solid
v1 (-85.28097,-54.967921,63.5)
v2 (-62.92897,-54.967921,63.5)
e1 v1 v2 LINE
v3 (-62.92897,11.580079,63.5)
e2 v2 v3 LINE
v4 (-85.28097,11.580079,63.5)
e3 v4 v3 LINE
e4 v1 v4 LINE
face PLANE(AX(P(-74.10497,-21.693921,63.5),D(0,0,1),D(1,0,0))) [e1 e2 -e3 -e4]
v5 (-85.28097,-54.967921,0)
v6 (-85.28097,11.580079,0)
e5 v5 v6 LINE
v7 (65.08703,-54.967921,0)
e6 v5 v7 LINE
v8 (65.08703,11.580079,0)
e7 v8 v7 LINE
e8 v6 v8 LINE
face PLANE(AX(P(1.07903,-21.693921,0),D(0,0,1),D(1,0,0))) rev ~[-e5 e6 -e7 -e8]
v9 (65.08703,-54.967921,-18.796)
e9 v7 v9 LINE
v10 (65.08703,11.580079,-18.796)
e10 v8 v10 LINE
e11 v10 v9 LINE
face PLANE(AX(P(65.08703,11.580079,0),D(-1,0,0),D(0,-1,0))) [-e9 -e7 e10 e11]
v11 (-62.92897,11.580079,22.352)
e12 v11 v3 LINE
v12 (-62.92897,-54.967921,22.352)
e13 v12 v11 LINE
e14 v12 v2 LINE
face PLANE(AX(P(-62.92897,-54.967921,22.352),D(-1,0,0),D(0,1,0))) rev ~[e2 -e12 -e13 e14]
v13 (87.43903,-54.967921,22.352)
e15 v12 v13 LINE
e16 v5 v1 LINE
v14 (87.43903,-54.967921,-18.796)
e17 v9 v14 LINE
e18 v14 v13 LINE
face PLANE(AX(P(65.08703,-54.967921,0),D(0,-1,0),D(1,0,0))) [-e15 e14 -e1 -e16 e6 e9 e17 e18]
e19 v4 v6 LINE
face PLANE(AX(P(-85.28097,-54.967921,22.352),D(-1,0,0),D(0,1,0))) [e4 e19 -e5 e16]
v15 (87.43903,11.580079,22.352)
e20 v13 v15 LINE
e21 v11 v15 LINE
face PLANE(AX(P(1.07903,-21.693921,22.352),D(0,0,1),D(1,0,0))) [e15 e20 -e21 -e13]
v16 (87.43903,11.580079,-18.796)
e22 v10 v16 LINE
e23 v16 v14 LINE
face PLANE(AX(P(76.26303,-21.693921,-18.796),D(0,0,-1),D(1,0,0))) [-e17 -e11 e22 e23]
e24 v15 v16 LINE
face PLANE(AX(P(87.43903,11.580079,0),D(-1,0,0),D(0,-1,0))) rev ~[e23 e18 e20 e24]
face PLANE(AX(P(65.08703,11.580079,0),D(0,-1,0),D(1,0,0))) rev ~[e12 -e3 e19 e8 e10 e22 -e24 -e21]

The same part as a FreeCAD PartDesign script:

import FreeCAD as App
import Part
import Sketcher

V = App.Vector
Q = App.Units.Quantity


def add_polygon(sketch, points):
    """Adds a closed chain of lines whose ends are joined by coincident constraints."""
    first, n = sketch.GeometryCount, len(points)
    for a, b in zip(points, points[1:] + points[:1]):
        sketch.addGeometry(Part.LineSegment(App.Vector(*a, 0), App.Vector(*b, 0)), False)
    for i in range(n):
        sketch.addConstraint(Sketcher.Constraint("Coincident", first + i, 2, first + (i + 1) % n, 1))

doc = App.newDocument("Part")
params = doc.addObject("Spreadsheet::Sheet", "Params")
for row, (alias, value) in enumerate([
    ("sketch1_width", "6.8 in"),
    ("sketch1_height", "2.62 in"),
    ("pad1_length", "0.88 in"),
    ("sketch2_width", "0.88 in"),
    ("sketch2_height", "2.62 in"),
    ("pad2_length", "1.62 in"),
    ("sketch3_width", "0.88 in"),
    ("sketch3_height", "2.62 in"),
    ("pad3_length", "0.74 in"),
], start=1):
    params.set(f"A{row}", alias)
    params.set(f"B{row}", "=" + value)
    params.setAlias(f"B{row}", alias)

body = doc.addObject("PartDesign::Body", "Body")

sketch1 = body.newObject("Sketcher::SketchObject", "Sketch")
sketch1.AttachmentSupport = (doc.getObject("XY_Plane"), [""])
sketch1.MapMode = "FlatFace"
add_polygon(sketch1, [(-85, 12), (-85, -55), (87, -55), (87, 12)])
sketch1.addConstraint([
    Sketcher.Constraint("Vertical", 0),
    Sketcher.Constraint("Horizontal", 1),
    Sketcher.Constraint("Vertical", 2),
    Sketcher.Constraint("Horizontal", 3),
    Sketcher.Constraint("DistanceX", 1, 1, 1, 2, Q("6.8 in")),
    Sketcher.Constraint("DistanceY", 0, 2, 0, 1, Q("2.62 in")),
    Sketcher.Constraint("DistanceX", 0, 2, -1, 1, 85.28097),
    Sketcher.Constraint("DistanceY", 0, 2, -1, 1, 54.967921),
])
sketch1.setExpression("Constraints[8]", "Params.sketch1_width")
sketch1.setExpression("Constraints[9]", "Params.sketch1_height")
pad1 = body.newObject("PartDesign::Pad", "Pad")
pad1.Profile = sketch1
pad1.setExpression("Length", "Params.pad1_length")

sketch2 = body.newObject("Sketcher::SketchObject", "Sketch001")
sketch2.AttachmentSupport = (doc.getObject("XY_Plane"), [""])
sketch2.MapMode = "FlatFace"
sketch2.AttachmentOffset = App.Placement(V(0, 0, 0.88 * 25.4), App.Rotation())
add_polygon(sketch2, [(-85, 12), (-85, -55), (-63, -55), (-63, 12)])
sketch2.addConstraint([
    Sketcher.Constraint("Vertical", 0),
    Sketcher.Constraint("Horizontal", 1),
    Sketcher.Constraint("Vertical", 2),
    Sketcher.Constraint("Horizontal", 3),
    Sketcher.Constraint("DistanceX", 1, 1, 1, 2, Q("0.88 in")),
    Sketcher.Constraint("DistanceY", 0, 2, 0, 1, Q("2.62 in")),
    Sketcher.Constraint("DistanceX", 0, 2, -1, 1, 85.28097),
    Sketcher.Constraint("DistanceY", 0, 2, -1, 1, 54.967921),
])
sketch2.setExpression("Constraints[8]", "Params.sketch2_width")
sketch2.setExpression("Constraints[9]", "Params.sketch2_height")
pad2 = body.newObject("PartDesign::Pad", "Pad001")
pad2.Profile = sketch2
pad2.setExpression("Length", "Params.pad2_length")

sketch3 = body.newObject("Sketcher::SketchObject", "Sketch002")
sketch3.AttachmentSupport = (doc.getObject("XY_Plane"), [""])
sketch3.MapMode = "FlatFace"
add_polygon(sketch3, [(65, -55), (65, 12), (87, 12), (87, -55)])
sketch3.addConstraint([
    Sketcher.Constraint("Vertical", 0),
    Sketcher.Constraint("Horizontal", 1),
    Sketcher.Constraint("Vertical", 2),
    Sketcher.Constraint("Horizontal", 3),
    Sketcher.Constraint("DistanceX", 1, 1, 1, 2, Q("0.88 in")),
    Sketcher.Constraint("DistanceY", 0, 1, 0, 2, Q("2.62 in")),
    Sketcher.Constraint("DistanceX", -1, 1, 0, 2, 65.08703),
    Sketcher.Constraint("DistanceY", -1, 1, 0, 2, 11.580079),
])
sketch3.setExpression("Constraints[8]", "Params.sketch3_width")
sketch3.setExpression("Constraints[9]", "Params.sketch3_height")
pad3 = body.newObject("PartDesign::Pad", "Pad002")
pad3.Profile = sketch3
pad3.setExpression("Length", "Params.pad3_length")
pad3.Reversed = True

doc.recompute()
